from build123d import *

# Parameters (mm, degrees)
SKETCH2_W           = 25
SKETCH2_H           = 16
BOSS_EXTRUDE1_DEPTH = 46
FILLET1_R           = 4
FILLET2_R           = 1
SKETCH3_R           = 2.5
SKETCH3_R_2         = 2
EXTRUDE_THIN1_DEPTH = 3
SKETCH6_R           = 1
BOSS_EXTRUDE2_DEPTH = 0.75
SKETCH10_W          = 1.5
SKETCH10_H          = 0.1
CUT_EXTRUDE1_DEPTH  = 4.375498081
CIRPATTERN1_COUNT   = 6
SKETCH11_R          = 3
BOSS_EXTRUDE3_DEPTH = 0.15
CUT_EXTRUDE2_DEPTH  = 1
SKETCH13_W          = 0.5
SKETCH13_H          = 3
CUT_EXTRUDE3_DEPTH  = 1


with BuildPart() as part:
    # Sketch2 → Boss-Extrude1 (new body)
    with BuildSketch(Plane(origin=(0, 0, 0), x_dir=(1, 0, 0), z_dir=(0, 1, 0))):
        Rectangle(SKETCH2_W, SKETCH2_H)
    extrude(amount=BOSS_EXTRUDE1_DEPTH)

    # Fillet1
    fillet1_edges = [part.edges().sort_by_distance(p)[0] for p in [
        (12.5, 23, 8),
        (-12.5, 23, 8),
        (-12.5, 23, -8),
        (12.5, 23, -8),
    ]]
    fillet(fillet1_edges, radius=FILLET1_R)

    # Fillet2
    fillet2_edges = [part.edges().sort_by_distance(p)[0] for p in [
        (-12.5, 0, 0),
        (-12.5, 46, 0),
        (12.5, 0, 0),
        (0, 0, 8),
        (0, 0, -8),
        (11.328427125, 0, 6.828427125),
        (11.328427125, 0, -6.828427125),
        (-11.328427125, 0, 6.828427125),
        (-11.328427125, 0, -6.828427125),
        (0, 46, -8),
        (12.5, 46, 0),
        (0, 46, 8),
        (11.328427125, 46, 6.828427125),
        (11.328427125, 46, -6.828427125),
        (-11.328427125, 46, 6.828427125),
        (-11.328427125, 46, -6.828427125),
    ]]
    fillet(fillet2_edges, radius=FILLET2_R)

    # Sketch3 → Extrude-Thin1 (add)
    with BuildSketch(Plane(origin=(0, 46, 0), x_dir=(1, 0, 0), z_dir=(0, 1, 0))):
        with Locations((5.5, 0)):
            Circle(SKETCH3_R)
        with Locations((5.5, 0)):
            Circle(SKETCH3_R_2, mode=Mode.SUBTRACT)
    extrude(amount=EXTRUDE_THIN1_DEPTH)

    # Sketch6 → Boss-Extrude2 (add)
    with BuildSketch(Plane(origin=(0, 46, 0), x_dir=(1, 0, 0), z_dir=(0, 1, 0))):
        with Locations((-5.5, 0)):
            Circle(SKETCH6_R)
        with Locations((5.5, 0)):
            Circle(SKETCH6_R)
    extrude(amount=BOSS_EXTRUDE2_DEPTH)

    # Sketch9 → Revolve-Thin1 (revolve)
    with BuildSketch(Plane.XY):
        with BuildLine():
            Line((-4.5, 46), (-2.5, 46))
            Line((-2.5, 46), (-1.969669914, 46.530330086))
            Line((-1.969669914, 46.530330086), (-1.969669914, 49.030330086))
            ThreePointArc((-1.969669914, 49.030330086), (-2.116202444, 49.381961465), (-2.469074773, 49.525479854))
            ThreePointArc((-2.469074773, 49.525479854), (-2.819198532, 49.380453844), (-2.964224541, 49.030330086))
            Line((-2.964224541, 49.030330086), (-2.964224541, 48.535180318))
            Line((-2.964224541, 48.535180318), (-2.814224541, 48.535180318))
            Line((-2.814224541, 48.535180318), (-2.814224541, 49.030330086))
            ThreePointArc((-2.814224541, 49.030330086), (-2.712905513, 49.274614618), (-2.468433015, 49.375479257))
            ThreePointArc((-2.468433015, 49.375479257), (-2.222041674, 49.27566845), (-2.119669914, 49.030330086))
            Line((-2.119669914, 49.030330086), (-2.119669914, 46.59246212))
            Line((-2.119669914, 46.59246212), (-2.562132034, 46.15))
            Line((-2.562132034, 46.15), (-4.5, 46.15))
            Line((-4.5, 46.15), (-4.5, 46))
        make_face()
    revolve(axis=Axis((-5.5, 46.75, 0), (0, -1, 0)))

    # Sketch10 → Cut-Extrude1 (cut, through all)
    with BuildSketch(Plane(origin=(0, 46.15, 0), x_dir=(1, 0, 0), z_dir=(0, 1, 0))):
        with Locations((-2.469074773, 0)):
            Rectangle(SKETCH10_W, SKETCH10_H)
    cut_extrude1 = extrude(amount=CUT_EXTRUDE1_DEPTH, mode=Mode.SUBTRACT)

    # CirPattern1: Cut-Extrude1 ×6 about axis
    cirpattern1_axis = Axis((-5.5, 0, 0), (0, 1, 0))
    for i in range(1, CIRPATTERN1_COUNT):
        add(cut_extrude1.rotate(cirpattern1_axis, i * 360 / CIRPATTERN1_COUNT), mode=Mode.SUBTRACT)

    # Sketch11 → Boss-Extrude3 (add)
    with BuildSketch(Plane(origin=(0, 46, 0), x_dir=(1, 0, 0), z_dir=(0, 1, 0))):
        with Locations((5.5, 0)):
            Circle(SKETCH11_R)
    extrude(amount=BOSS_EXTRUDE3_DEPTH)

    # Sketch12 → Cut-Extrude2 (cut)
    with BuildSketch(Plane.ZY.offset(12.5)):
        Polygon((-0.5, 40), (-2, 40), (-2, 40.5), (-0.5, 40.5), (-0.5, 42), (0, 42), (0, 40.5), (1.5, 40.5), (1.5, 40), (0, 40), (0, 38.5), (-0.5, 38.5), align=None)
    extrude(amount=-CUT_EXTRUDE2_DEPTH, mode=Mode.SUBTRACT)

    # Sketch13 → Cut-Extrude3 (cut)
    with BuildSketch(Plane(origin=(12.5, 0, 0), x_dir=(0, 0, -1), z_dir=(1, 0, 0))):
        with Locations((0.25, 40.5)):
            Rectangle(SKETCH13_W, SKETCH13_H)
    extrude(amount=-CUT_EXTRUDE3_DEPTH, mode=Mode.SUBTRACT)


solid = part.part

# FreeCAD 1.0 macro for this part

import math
import FreeCAD as App
import Part
import Sketcher
Q = App.Units.Quantity


def edges_at(feature, points):
    """Names of the edges that pass closest to the given points."""
    edges = feature.Shape.Edges
    near = lambda p: min(range(len(edges)), key=lambda i: edges[i].distToShape(Part.Vertex(*p))[0])
    return sorted({f"Edge{near(p) + 1}" for p in points})

doc = App.newDocument("Part")
body = doc.addObject("PartDesign::Body", "Body")

# Sketch on XZ plane
sketch1 = body.newObject("Sketcher::SketchObject", "Sketch")
sketch1.AttachmentSupport = (doc.getObject("XZ_Plane"), [""])
sketch1.MapMode = "FlatFace"
sketch1.addGeometry([
    Part.LineSegment(App.Vector(-12, -8, 0), App.Vector(-12, 8, 0)),
    Part.LineSegment(App.Vector(-12, 8, 0), App.Vector(12, 8, 0)),
    Part.LineSegment(App.Vector(12, 8, 0), App.Vector(12, -8, 0)),
    Part.LineSegment(App.Vector(12, -8, 0), App.Vector(-12, -8, 0)),
], False)
sketch1.addConstraint([
    Sketcher.Constraint("Coincident", 0, 2, 1, 1),
    Sketcher.Constraint("Coincident", 1, 2, 2, 1),
    Sketcher.Constraint("Coincident", 2, 2, 3, 1),
    Sketcher.Constraint("Coincident", 3, 2, 0, 1),
    Sketcher.Constraint("Vertical", 0),
    Sketcher.Constraint("Horizontal", 1),
    Sketcher.Constraint("Vertical", 2),
    Sketcher.Constraint("Horizontal", 3),
    Sketcher.Constraint("Symmetric", 0, 2, 2, 2, -1, 1),
    Sketcher.Constraint("DistanceX", 1, 1, 1, 2, Q("25 mm")),
    Sketcher.Constraint("DistanceY", 0, 1, 0, 2, Q("16 mm")),
])
pad1 = body.newObject("PartDesign::Pad", "Pad")
pad1.Profile = sketch1
pad1.Length = 46
pad1.Reversed = True
doc.recompute()

fillet = body.newObject("PartDesign::Fillet", "Fillet")
fillet.Base = (pad1, edges_at(pad1, [
    (12.5, 23, 8),
    (-12.5, 23, 8),
    (-12.5, 23, -8),
    (12.5, 23, -8),
]))
fillet.Radius = 4
doc.recompute()

fillet2 = body.newObject("PartDesign::Fillet", "Fillet001")
fillet2.Base = (fillet, edges_at(fillet, [
    (-12.5, 0, 0),
    (-12.5, 46, 0),
    (12.5, 0, 0),
    (0, 0, 8),
    (0, 0, -8),
    (11.328, 0, 6.828),
    (11.328, 0, -6.828),
    (-11.328, 0, 6.828),
    (-11.328, 0, -6.828),
    (0, 46, -8),
    (12.5, 46, 0),
    (0, 46, 8),
    (11.328, 46, 6.828),
    (11.328, 46, -6.828),
    (-11.328, 46, 6.828),
    (-11.328, 46, -6.828),
]))
fillet2.Radius = 1

# Sketch on XZ plane
sketch2 = body.newObject("Sketcher::SketchObject", "Sketch001")
sketch2.AttachmentSupport = (doc.getObject("XZ_Plane"), [""])
sketch2.MapMode = "FlatFace"
sketch2.AttachmentOffset = App.Placement(App.Vector(0, 0, -46), App.Rotation())
sketch2.addGeometry([
    Part.Circle(App.Vector(5.5, 0, 0), App.Vector(0, 0, 1), 2.5),
    Part.Circle(App.Vector(5.5, 0, 0), App.Vector(0, 0, 1), 2),
], False)
sketch2.addConstraint([
    Sketcher.Constraint("Coincident", 1, 3, 0, 3),
    Sketcher.Constraint("PointOnObject", 0, 3, -1),
    Sketcher.Constraint("Diameter", 0, Q("5 mm")),
    Sketcher.Constraint("Diameter", 1, Q("4 mm")),
    Sketcher.Constraint("DistanceX", -1, 1, 0, 3, Q("5.5 mm")),
])
pad2 = body.newObject("PartDesign::Pad", "Pad001")
pad2.Profile = sketch2
pad2.Length = 3
pad2.Reversed = True

# Sketch on XZ plane
sketch3 = body.newObject("Sketcher::SketchObject", "Sketch002")
sketch3.AttachmentSupport = (doc.getObject("XZ_Plane"), [""])
sketch3.MapMode = "FlatFace"
sketch3.AttachmentOffset = App.Placement(App.Vector(0, 0, -46), App.Rotation())
sketch3.addGeometry([
    Part.Circle(App.Vector(-5.5, 0, 0), App.Vector(0, 0, 1), 1),
    Part.Circle(App.Vector(5.5, 0, 0), App.Vector(0, 0, 1), 1),
], False)
sketch3.addConstraint([
    Sketcher.Constraint("Equal", 0, 1),
    Sketcher.Constraint("Symmetric", 0, 3, 1, 3, -1, 1),
    Sketcher.Constraint("PointOnObject", 0, 3, -1),
    Sketcher.Constraint("Diameter", 0, Q("2 mm")),
    Sketcher.Constraint("DistanceX", 0, 3, 1, 3, Q("11 mm")),
])
pad3 = body.newObject("PartDesign::Pad", "Pad002")
pad3.Profile = sketch3
pad3.Length = 0.75
pad3.Reversed = True

# Sketch on XY plane
sketch4 = body.newObject("Sketcher::SketchObject", "Sketch003")
sketch4.AttachmentSupport = (doc.getObject("XY_Plane"), [""])
sketch4.MapMode = "FlatFace"
sketch4.addGeometry([
    Part.LineSegment(App.Vector(-4.5, 46, 0), App.Vector(-2.5, 46, 0)),  # 0
    Part.LineSegment(App.Vector(-2.5, 46, 0), App.Vector(-1.97, 46.53, 0)),  # 1
    Part.LineSegment(App.Vector(-1.97, 46.53, 0), App.Vector(-1.97, 49.03, 0)),  # 2
    Part.ArcOfCircle(Part.Circle(App.Vector(-2.46, 49.03, 0), App.Vector(0, 0, 1), 0.5), math.radians(0), math.radians(90)),  # 3
    Part.ArcOfCircle(Part.Circle(App.Vector(-2.47, 49.03, 0), App.Vector(0, 0, 1), 0.5), math.radians(90), math.radians(180)),  # 4
    Part.LineSegment(App.Vector(-2.96, 49.03, 0), App.Vector(-2.96, 48.54, 0)),  # 5
    Part.LineSegment(App.Vector(-2.96, 48.54, 0), App.Vector(-2.81, 48.54, 0)),  # 6
    Part.LineSegment(App.Vector(-2.81, 48.54, 0), App.Vector(-2.81, 49.03, 0)),  # 7
    Part.ArcOfCircle(Part.Circle(App.Vector(-2.47, 49.03, 0), App.Vector(0, 0, 1), 0.35), math.radians(90), math.radians(180)),  # 8
    Part.ArcOfCircle(Part.Circle(App.Vector(-2.46, 49.03, 0), App.Vector(0, 0, 1), 0.35), math.radians(0), math.radians(91)),  # 9
    Part.LineSegment(App.Vector(-2.12, 49.03, 0), App.Vector(-2.12, 46.59, 0)),  # 10
    Part.LineSegment(App.Vector(-2.12, 46.59, 0), App.Vector(-2.56, 46.15, 0)),  # 11
    Part.LineSegment(App.Vector(-2.56, 46.15, 0), App.Vector(-4.5, 46.15, 0)),  # 12
    Part.LineSegment(App.Vector(-4.5, 46.15, 0), App.Vector(-4.5, 46, 0)),  # 13
], False)
sketch4.addGeometry(Part.LineSegment(App.Vector(-5.5, 49.53, 0), App.Vector(-5.5, 46, 0)), True)  # axis
sketch4.addConstraint([
    Sketcher.Constraint("Coincident", 0, 2, 1, 1),
    Sketcher.Constraint("Coincident", 1, 2, 2, 1),
    Sketcher.Constraint("Tangent", 2, 2, 3, 1),
    Sketcher.Constraint("Coincident", 3, 2, 4, 1),
    Sketcher.Constraint("Tangent", 4, 2, 5, 1),
    Sketcher.Constraint("Coincident", 5, 2, 6, 1),
    Sketcher.Constraint("Coincident", 6, 2, 7, 1),
    Sketcher.Constraint("Tangent", 7, 2, 8, 2),
    Sketcher.Constraint("Coincident", 8, 1, 9, 2),
    Sketcher.Constraint("Tangent", 9, 1, 10, 1),
    Sketcher.Constraint("Coincident", 10, 2, 11, 1),
    Sketcher.Constraint("Coincident", 11, 2, 12, 1),
    Sketcher.Constraint("Coincident", 12, 2, 13, 1),
    Sketcher.Constraint("Coincident", 13, 2, 0, 1),
    Sketcher.Constraint("Horizontal", 0),
    Sketcher.Constraint("Vertical", 2),
    Sketcher.Constraint("Vertical", 5),
    Sketcher.Constraint("Horizontal", 6),
    Sketcher.Constraint("Vertical", 7),
    Sketcher.Constraint("Vertical", 10),
    Sketcher.Constraint("Horizontal", 12),
    Sketcher.Constraint("Vertical", 13),
    Sketcher.Constraint("Vertical", 14),
    Sketcher.Constraint("Coincident", 8, 3, 4, 3),
    Sketcher.Constraint("Coincident", 9, 3, 3, 3),
    Sketcher.Constraint("Parallel", 1, 11),
    Sketcher.Constraint("Horizontal", 3, 3, 4, 3),
    Sketcher.Constraint("Horizontal", 3, 2, 14, 1),
    Sketcher.Constraint("Horizontal", 13, 2, 14, 2),
    Sketcher.Constraint("Vertical", 8, 3, 3, 2),
    Sketcher.Constraint("Equal", 6, 13),
    Sketcher.Constraint("DistanceX", 0, 1, 0, 2, Q("2 mm")),
    Sketcher.Constraint("Angle", 1, Q("45 deg")),
    Sketcher.Constraint("DistanceY", 2, 1, 2, 2, Q("2.5 mm")),
    Sketcher.Constraint("DistanceY", -1, 1, 0, 2, Q("46 mm")),
    Sketcher.Constraint("DistanceX", 14, 2, 13, 2, Q("1 mm")),
    Sketcher.Constraint("DistanceX", 6, 1, 6, 2, Q("0.15 mm")),
    Sketcher.Constraint("DistanceX", 0, 2, -1, 1, Q("2.5 mm")),
    Sketcher.Constraint("Distance", 1, Q("0.75 mm")),
    Sketcher.Constraint("Radius", 4, Q("0.49515 mm")),
    Sketcher.Constraint("DistanceX", 10, 2, 1, 2, Q("0.15 mm")),
    Sketcher.Constraint("DistanceY", 5, 2, 5, 1, Q("0.49515 mm")),
    Sketcher.Constraint("DistanceX", 12, 2, 12, 1, Q("1.937868 mm")),
    Sketcher.Constraint("DistanceX", 3, 2, 8, 1, Q("0.000642 mm")),
])
revolution = body.newObject("PartDesign::Revolution", "Revolution")
revolution.Profile = sketch4
revolution.ReferenceAxis = (sketch4, ["Axis0"])
revolution.Angle = 360

# Sketch on XZ plane
sketch5 = body.newObject("Sketcher::SketchObject", "Sketch004")
sketch5.AttachmentSupport = (doc.getObject("XZ_Plane"), [""])
sketch5.MapMode = "FlatFace"
sketch5.AttachmentOffset = App.Placement(App.Vector(0, 0, -46.15), App.Rotation())
sketch5.addGeometry([
    Part.LineSegment(App.Vector(-3.22, -0.05, 0), App.Vector(-3.22, 0.05, 0)),
    Part.LineSegment(App.Vector(-3.22, 0.05, 0), App.Vector(-1.72, 0.05, 0)),
    Part.LineSegment(App.Vector(-1.72, 0.05, 0), App.Vector(-1.72, -0.05, 0)),
    Part.LineSegment(App.Vector(-1.72, -0.05, 0), App.Vector(-3.22, -0.05, 0)),
], False)
sketch5.addConstraint([
    Sketcher.Constraint("Coincident", 0, 2, 1, 1),
    Sketcher.Constraint("Coincident", 1, 2, 2, 1),
    Sketcher.Constraint("Coincident", 2, 2, 3, 1),
    Sketcher.Constraint("Coincident", 3, 2, 0, 1),
    Sketcher.Constraint("Vertical", 0),
    Sketcher.Constraint("Horizontal", 1),
    Sketcher.Constraint("Vertical", 2),
    Sketcher.Constraint("Horizontal", 3),
    Sketcher.Constraint("DistanceX", 1, 1, 1, 2, Q("1.5 mm")),
    Sketcher.Constraint("DistanceY", 0, 1, 0, 2, Q("0.1 mm")),
    Sketcher.Constraint("DistanceY", -1, 1, 0, 2, Q("0.05 mm")),
    Sketcher.Constraint("DistanceX", 0, 2, -1, 1, Q("3.219075 mm")),
])
pocket1 = body.newObject("PartDesign::Pocket", "Pocket")
pocket1.Profile = sketch5
pocket1.Type = "ThroughAll"
doc.recompute()

datumline = body.newObject("PartDesign::Line", "DatumLine")
datumline.Placement = App.Placement(App.Vector(-5.5, 0, 0), App.Rotation(App.Vector(0, 0, 1), App.Vector(0, 1, 0)))
polarpattern = body.newObject("PartDesign::PolarPattern", "PolarPattern")
polarpattern.Originals = [pocket1]
polarpattern.Axis = (datumline, [""])
polarpattern.Angle = 360
polarpattern.Occurrences = 6
body.Tip = polarpattern

# Sketch on XZ plane
sketch6 = body.newObject("Sketcher::SketchObject", "Sketch005")
sketch6.AttachmentSupport = (doc.getObject("XZ_Plane"), [""])
sketch6.MapMode = "FlatFace"
sketch6.AttachmentOffset = App.Placement(App.Vector(0, 0, -46), App.Rotation())
sketch6.addGeometry(Part.Circle(App.Vector(5.5, 0, 0), App.Vector(0, 0, 1), 3), False)
sketch6.addConstraint([
    Sketcher.Constraint("PointOnObject", 0, 3, -1),
    Sketcher.Constraint("Diameter", 0, Q("6 mm")),
    Sketcher.Constraint("DistanceX", -1, 1, 0, 3, Q("5.5 mm")),
])
pad4 = body.newObject("PartDesign::Pad", "Pad003")
pad4.Profile = sketch6
pad4.Length = 0.15
pad4.Reversed = True

# Sketch on YZ plane
sketch7 = body.newObject("Sketcher::SketchObject", "Sketch006")
sketch7.AttachmentSupport = (doc.getObject("YZ_Plane"), [""])
sketch7.MapMode = "FlatFace"
sketch7.AttachmentOffset = App.Placement(App.Vector(0, 0, -12.5), App.Rotation())
sketch7.addGeometry([
    Part.LineSegment(App.Vector(40, -2, 0), App.Vector(40, -0.5, 0)),  # 0
    Part.LineSegment(App.Vector(40, -0.5, 0), App.Vector(38.5, -0.5, 0)),  # 1
    Part.LineSegment(App.Vector(38.5, -0.5, 0), App.Vector(38.5, 0, 0)),  # 2
    Part.LineSegment(App.Vector(38.5, 0, 0), App.Vector(40, 0, 0)),  # 3
    Part.LineSegment(App.Vector(40, 0, 0), App.Vector(40, 1.5, 0)),  # 4
    Part.LineSegment(App.Vector(40, 1.5, 0), App.Vector(40.5, 1.5, 0)),  # 5
    Part.LineSegment(App.Vector(40.5, 1.5, 0), App.Vector(40.5, 0, 0)),  # 6
    Part.LineSegment(App.Vector(40.5, 0, 0), App.Vector(42, 0, 0)),  # 7
    Part.LineSegment(App.Vector(42, 0, 0), App.Vector(42, -0.5, 0)),  # 8
    Part.LineSegment(App.Vector(42, -0.5, 0), App.Vector(40.5, -0.5, 0)),  # 9
    Part.LineSegment(App.Vector(40.5, -0.5, 0), App.Vector(40.5, -2, 0)),  # 10
    Part.LineSegment(App.Vector(40.5, -2, 0), App.Vector(40, -2, 0)),  # 11
], False)
sketch7.addConstraint([
    Sketcher.Constraint("Coincident", 0, 2, 1, 1),
    Sketcher.Constraint("Coincident", 1, 2, 2, 1),
    Sketcher.Constraint("Coincident", 2, 2, 3, 1),
    Sketcher.Constraint("Coincident", 3, 2, 4, 1),
    Sketcher.Constraint("Coincident", 4, 2, 5, 1),
    Sketcher.Constraint("Coincident", 5, 2, 6, 1),
    Sketcher.Constraint("Coincident", 6, 2, 7, 1),
    Sketcher.Constraint("Coincident", 7, 2, 8, 1),
    Sketcher.Constraint("Coincident", 8, 2, 9, 1),
    Sketcher.Constraint("Coincident", 9, 2, 10, 1),
    Sketcher.Constraint("Coincident", 10, 2, 11, 1),
    Sketcher.Constraint("Coincident", 11, 2, 0, 1),
    Sketcher.Constraint("Vertical", 0),
    Sketcher.Constraint("Horizontal", 1),
    Sketcher.Constraint("Vertical", 2),
    Sketcher.Constraint("Horizontal", 3),
    Sketcher.Constraint("Vertical", 4),
    Sketcher.Constraint("Horizontal", 5),
    Sketcher.Constraint("Vertical", 6),
    Sketcher.Constraint("Horizontal", 7),
    Sketcher.Constraint("Vertical", 8),
    Sketcher.Constraint("Horizontal", 9),
    Sketcher.Constraint("Vertical", 10),
    Sketcher.Constraint("Horizontal", 11),
    Sketcher.Constraint("PointOnObject", 2, 2, -1),
    Sketcher.Constraint("PointOnObject", 6, 2, -1),
    Sketcher.Constraint("Horizontal", 1, 2, 8, 2),
    Sketcher.Constraint("Vertical", 0, 2, 3, 2),
    Sketcher.Constraint("Vertical", 6, 2, 9, 2),
    Sketcher.Constraint("Equal", 3, 7),
    Sketcher.Constraint("Equal", 9, 0),
    Sketcher.Constraint("Equal", 11, 2),
    Sketcher.Constraint("Equal", 0, 4),
    Sketcher.Constraint("DistanceX", 1, 2, 1, 1, Q("1.5 mm")),
    Sketcher.Constraint("DistanceX", 5, 1, 5, 2, Q("0.5 mm")),
    Sketcher.Constraint("DistanceX", -1, 1, 0, 2, Q("40 mm")),
])
pocket2 = body.newObject("PartDesign::Pocket", "Pocket001")
pocket2.Profile = sketch7
pocket2.Length = 1
pocket2.Reversed = True

# Sketch on YZ plane
sketch8 = body.newObject("Sketcher::SketchObject", "Sketch007")
sketch8.AttachmentSupport = (doc.getObject("YZ_Plane"), [""])
sketch8.MapMode = "FlatFace"
sketch8.AttachmentOffset = App.Placement(App.Vector(0, 0, 12.5), App.Rotation())
sketch8.addGeometry([
    Part.LineSegment(App.Vector(42, 0, 0), App.Vector(39, 0, 0)),
    Part.LineSegment(App.Vector(39, 0, 0), App.Vector(39, -0.5, 0)),
    Part.LineSegment(App.Vector(39, -0.5, 0), App.Vector(42, -0.5, 0)),
    Part.LineSegment(App.Vector(42, -0.5, 0), App.Vector(42, 0, 0)),
], False)
sketch8.addConstraint([
    Sketcher.Constraint("Coincident", 0, 2, 1, 1),
    Sketcher.Constraint("Coincident", 1, 2, 2, 1),
    Sketcher.Constraint("Coincident", 2, 2, 3, 1),
    Sketcher.Constraint("Coincident", 3, 2, 0, 1),
    Sketcher.Constraint("Horizontal", 0),
    Sketcher.Constraint("Vertical", 1),
    Sketcher.Constraint("Horizontal", 2),
    Sketcher.Constraint("Vertical", 3),
    Sketcher.Constraint("PointOnObject", 0, 2, -1),
    Sketcher.Constraint("DistanceX", 0, 2, 0, 1, Q("3 mm")),
    Sketcher.Constraint("DistanceY", 1, 2, 1, 1, Q("0.5 mm")),
    Sketcher.Constraint("DistanceX", -1, 1, 0, 2, Q("39 mm")),
])
pocket3 = body.newObject("PartDesign::Pocket", "Pocket002")
pocket3.Profile = sketch8
pocket3.Length = 1

doc.recompute()
